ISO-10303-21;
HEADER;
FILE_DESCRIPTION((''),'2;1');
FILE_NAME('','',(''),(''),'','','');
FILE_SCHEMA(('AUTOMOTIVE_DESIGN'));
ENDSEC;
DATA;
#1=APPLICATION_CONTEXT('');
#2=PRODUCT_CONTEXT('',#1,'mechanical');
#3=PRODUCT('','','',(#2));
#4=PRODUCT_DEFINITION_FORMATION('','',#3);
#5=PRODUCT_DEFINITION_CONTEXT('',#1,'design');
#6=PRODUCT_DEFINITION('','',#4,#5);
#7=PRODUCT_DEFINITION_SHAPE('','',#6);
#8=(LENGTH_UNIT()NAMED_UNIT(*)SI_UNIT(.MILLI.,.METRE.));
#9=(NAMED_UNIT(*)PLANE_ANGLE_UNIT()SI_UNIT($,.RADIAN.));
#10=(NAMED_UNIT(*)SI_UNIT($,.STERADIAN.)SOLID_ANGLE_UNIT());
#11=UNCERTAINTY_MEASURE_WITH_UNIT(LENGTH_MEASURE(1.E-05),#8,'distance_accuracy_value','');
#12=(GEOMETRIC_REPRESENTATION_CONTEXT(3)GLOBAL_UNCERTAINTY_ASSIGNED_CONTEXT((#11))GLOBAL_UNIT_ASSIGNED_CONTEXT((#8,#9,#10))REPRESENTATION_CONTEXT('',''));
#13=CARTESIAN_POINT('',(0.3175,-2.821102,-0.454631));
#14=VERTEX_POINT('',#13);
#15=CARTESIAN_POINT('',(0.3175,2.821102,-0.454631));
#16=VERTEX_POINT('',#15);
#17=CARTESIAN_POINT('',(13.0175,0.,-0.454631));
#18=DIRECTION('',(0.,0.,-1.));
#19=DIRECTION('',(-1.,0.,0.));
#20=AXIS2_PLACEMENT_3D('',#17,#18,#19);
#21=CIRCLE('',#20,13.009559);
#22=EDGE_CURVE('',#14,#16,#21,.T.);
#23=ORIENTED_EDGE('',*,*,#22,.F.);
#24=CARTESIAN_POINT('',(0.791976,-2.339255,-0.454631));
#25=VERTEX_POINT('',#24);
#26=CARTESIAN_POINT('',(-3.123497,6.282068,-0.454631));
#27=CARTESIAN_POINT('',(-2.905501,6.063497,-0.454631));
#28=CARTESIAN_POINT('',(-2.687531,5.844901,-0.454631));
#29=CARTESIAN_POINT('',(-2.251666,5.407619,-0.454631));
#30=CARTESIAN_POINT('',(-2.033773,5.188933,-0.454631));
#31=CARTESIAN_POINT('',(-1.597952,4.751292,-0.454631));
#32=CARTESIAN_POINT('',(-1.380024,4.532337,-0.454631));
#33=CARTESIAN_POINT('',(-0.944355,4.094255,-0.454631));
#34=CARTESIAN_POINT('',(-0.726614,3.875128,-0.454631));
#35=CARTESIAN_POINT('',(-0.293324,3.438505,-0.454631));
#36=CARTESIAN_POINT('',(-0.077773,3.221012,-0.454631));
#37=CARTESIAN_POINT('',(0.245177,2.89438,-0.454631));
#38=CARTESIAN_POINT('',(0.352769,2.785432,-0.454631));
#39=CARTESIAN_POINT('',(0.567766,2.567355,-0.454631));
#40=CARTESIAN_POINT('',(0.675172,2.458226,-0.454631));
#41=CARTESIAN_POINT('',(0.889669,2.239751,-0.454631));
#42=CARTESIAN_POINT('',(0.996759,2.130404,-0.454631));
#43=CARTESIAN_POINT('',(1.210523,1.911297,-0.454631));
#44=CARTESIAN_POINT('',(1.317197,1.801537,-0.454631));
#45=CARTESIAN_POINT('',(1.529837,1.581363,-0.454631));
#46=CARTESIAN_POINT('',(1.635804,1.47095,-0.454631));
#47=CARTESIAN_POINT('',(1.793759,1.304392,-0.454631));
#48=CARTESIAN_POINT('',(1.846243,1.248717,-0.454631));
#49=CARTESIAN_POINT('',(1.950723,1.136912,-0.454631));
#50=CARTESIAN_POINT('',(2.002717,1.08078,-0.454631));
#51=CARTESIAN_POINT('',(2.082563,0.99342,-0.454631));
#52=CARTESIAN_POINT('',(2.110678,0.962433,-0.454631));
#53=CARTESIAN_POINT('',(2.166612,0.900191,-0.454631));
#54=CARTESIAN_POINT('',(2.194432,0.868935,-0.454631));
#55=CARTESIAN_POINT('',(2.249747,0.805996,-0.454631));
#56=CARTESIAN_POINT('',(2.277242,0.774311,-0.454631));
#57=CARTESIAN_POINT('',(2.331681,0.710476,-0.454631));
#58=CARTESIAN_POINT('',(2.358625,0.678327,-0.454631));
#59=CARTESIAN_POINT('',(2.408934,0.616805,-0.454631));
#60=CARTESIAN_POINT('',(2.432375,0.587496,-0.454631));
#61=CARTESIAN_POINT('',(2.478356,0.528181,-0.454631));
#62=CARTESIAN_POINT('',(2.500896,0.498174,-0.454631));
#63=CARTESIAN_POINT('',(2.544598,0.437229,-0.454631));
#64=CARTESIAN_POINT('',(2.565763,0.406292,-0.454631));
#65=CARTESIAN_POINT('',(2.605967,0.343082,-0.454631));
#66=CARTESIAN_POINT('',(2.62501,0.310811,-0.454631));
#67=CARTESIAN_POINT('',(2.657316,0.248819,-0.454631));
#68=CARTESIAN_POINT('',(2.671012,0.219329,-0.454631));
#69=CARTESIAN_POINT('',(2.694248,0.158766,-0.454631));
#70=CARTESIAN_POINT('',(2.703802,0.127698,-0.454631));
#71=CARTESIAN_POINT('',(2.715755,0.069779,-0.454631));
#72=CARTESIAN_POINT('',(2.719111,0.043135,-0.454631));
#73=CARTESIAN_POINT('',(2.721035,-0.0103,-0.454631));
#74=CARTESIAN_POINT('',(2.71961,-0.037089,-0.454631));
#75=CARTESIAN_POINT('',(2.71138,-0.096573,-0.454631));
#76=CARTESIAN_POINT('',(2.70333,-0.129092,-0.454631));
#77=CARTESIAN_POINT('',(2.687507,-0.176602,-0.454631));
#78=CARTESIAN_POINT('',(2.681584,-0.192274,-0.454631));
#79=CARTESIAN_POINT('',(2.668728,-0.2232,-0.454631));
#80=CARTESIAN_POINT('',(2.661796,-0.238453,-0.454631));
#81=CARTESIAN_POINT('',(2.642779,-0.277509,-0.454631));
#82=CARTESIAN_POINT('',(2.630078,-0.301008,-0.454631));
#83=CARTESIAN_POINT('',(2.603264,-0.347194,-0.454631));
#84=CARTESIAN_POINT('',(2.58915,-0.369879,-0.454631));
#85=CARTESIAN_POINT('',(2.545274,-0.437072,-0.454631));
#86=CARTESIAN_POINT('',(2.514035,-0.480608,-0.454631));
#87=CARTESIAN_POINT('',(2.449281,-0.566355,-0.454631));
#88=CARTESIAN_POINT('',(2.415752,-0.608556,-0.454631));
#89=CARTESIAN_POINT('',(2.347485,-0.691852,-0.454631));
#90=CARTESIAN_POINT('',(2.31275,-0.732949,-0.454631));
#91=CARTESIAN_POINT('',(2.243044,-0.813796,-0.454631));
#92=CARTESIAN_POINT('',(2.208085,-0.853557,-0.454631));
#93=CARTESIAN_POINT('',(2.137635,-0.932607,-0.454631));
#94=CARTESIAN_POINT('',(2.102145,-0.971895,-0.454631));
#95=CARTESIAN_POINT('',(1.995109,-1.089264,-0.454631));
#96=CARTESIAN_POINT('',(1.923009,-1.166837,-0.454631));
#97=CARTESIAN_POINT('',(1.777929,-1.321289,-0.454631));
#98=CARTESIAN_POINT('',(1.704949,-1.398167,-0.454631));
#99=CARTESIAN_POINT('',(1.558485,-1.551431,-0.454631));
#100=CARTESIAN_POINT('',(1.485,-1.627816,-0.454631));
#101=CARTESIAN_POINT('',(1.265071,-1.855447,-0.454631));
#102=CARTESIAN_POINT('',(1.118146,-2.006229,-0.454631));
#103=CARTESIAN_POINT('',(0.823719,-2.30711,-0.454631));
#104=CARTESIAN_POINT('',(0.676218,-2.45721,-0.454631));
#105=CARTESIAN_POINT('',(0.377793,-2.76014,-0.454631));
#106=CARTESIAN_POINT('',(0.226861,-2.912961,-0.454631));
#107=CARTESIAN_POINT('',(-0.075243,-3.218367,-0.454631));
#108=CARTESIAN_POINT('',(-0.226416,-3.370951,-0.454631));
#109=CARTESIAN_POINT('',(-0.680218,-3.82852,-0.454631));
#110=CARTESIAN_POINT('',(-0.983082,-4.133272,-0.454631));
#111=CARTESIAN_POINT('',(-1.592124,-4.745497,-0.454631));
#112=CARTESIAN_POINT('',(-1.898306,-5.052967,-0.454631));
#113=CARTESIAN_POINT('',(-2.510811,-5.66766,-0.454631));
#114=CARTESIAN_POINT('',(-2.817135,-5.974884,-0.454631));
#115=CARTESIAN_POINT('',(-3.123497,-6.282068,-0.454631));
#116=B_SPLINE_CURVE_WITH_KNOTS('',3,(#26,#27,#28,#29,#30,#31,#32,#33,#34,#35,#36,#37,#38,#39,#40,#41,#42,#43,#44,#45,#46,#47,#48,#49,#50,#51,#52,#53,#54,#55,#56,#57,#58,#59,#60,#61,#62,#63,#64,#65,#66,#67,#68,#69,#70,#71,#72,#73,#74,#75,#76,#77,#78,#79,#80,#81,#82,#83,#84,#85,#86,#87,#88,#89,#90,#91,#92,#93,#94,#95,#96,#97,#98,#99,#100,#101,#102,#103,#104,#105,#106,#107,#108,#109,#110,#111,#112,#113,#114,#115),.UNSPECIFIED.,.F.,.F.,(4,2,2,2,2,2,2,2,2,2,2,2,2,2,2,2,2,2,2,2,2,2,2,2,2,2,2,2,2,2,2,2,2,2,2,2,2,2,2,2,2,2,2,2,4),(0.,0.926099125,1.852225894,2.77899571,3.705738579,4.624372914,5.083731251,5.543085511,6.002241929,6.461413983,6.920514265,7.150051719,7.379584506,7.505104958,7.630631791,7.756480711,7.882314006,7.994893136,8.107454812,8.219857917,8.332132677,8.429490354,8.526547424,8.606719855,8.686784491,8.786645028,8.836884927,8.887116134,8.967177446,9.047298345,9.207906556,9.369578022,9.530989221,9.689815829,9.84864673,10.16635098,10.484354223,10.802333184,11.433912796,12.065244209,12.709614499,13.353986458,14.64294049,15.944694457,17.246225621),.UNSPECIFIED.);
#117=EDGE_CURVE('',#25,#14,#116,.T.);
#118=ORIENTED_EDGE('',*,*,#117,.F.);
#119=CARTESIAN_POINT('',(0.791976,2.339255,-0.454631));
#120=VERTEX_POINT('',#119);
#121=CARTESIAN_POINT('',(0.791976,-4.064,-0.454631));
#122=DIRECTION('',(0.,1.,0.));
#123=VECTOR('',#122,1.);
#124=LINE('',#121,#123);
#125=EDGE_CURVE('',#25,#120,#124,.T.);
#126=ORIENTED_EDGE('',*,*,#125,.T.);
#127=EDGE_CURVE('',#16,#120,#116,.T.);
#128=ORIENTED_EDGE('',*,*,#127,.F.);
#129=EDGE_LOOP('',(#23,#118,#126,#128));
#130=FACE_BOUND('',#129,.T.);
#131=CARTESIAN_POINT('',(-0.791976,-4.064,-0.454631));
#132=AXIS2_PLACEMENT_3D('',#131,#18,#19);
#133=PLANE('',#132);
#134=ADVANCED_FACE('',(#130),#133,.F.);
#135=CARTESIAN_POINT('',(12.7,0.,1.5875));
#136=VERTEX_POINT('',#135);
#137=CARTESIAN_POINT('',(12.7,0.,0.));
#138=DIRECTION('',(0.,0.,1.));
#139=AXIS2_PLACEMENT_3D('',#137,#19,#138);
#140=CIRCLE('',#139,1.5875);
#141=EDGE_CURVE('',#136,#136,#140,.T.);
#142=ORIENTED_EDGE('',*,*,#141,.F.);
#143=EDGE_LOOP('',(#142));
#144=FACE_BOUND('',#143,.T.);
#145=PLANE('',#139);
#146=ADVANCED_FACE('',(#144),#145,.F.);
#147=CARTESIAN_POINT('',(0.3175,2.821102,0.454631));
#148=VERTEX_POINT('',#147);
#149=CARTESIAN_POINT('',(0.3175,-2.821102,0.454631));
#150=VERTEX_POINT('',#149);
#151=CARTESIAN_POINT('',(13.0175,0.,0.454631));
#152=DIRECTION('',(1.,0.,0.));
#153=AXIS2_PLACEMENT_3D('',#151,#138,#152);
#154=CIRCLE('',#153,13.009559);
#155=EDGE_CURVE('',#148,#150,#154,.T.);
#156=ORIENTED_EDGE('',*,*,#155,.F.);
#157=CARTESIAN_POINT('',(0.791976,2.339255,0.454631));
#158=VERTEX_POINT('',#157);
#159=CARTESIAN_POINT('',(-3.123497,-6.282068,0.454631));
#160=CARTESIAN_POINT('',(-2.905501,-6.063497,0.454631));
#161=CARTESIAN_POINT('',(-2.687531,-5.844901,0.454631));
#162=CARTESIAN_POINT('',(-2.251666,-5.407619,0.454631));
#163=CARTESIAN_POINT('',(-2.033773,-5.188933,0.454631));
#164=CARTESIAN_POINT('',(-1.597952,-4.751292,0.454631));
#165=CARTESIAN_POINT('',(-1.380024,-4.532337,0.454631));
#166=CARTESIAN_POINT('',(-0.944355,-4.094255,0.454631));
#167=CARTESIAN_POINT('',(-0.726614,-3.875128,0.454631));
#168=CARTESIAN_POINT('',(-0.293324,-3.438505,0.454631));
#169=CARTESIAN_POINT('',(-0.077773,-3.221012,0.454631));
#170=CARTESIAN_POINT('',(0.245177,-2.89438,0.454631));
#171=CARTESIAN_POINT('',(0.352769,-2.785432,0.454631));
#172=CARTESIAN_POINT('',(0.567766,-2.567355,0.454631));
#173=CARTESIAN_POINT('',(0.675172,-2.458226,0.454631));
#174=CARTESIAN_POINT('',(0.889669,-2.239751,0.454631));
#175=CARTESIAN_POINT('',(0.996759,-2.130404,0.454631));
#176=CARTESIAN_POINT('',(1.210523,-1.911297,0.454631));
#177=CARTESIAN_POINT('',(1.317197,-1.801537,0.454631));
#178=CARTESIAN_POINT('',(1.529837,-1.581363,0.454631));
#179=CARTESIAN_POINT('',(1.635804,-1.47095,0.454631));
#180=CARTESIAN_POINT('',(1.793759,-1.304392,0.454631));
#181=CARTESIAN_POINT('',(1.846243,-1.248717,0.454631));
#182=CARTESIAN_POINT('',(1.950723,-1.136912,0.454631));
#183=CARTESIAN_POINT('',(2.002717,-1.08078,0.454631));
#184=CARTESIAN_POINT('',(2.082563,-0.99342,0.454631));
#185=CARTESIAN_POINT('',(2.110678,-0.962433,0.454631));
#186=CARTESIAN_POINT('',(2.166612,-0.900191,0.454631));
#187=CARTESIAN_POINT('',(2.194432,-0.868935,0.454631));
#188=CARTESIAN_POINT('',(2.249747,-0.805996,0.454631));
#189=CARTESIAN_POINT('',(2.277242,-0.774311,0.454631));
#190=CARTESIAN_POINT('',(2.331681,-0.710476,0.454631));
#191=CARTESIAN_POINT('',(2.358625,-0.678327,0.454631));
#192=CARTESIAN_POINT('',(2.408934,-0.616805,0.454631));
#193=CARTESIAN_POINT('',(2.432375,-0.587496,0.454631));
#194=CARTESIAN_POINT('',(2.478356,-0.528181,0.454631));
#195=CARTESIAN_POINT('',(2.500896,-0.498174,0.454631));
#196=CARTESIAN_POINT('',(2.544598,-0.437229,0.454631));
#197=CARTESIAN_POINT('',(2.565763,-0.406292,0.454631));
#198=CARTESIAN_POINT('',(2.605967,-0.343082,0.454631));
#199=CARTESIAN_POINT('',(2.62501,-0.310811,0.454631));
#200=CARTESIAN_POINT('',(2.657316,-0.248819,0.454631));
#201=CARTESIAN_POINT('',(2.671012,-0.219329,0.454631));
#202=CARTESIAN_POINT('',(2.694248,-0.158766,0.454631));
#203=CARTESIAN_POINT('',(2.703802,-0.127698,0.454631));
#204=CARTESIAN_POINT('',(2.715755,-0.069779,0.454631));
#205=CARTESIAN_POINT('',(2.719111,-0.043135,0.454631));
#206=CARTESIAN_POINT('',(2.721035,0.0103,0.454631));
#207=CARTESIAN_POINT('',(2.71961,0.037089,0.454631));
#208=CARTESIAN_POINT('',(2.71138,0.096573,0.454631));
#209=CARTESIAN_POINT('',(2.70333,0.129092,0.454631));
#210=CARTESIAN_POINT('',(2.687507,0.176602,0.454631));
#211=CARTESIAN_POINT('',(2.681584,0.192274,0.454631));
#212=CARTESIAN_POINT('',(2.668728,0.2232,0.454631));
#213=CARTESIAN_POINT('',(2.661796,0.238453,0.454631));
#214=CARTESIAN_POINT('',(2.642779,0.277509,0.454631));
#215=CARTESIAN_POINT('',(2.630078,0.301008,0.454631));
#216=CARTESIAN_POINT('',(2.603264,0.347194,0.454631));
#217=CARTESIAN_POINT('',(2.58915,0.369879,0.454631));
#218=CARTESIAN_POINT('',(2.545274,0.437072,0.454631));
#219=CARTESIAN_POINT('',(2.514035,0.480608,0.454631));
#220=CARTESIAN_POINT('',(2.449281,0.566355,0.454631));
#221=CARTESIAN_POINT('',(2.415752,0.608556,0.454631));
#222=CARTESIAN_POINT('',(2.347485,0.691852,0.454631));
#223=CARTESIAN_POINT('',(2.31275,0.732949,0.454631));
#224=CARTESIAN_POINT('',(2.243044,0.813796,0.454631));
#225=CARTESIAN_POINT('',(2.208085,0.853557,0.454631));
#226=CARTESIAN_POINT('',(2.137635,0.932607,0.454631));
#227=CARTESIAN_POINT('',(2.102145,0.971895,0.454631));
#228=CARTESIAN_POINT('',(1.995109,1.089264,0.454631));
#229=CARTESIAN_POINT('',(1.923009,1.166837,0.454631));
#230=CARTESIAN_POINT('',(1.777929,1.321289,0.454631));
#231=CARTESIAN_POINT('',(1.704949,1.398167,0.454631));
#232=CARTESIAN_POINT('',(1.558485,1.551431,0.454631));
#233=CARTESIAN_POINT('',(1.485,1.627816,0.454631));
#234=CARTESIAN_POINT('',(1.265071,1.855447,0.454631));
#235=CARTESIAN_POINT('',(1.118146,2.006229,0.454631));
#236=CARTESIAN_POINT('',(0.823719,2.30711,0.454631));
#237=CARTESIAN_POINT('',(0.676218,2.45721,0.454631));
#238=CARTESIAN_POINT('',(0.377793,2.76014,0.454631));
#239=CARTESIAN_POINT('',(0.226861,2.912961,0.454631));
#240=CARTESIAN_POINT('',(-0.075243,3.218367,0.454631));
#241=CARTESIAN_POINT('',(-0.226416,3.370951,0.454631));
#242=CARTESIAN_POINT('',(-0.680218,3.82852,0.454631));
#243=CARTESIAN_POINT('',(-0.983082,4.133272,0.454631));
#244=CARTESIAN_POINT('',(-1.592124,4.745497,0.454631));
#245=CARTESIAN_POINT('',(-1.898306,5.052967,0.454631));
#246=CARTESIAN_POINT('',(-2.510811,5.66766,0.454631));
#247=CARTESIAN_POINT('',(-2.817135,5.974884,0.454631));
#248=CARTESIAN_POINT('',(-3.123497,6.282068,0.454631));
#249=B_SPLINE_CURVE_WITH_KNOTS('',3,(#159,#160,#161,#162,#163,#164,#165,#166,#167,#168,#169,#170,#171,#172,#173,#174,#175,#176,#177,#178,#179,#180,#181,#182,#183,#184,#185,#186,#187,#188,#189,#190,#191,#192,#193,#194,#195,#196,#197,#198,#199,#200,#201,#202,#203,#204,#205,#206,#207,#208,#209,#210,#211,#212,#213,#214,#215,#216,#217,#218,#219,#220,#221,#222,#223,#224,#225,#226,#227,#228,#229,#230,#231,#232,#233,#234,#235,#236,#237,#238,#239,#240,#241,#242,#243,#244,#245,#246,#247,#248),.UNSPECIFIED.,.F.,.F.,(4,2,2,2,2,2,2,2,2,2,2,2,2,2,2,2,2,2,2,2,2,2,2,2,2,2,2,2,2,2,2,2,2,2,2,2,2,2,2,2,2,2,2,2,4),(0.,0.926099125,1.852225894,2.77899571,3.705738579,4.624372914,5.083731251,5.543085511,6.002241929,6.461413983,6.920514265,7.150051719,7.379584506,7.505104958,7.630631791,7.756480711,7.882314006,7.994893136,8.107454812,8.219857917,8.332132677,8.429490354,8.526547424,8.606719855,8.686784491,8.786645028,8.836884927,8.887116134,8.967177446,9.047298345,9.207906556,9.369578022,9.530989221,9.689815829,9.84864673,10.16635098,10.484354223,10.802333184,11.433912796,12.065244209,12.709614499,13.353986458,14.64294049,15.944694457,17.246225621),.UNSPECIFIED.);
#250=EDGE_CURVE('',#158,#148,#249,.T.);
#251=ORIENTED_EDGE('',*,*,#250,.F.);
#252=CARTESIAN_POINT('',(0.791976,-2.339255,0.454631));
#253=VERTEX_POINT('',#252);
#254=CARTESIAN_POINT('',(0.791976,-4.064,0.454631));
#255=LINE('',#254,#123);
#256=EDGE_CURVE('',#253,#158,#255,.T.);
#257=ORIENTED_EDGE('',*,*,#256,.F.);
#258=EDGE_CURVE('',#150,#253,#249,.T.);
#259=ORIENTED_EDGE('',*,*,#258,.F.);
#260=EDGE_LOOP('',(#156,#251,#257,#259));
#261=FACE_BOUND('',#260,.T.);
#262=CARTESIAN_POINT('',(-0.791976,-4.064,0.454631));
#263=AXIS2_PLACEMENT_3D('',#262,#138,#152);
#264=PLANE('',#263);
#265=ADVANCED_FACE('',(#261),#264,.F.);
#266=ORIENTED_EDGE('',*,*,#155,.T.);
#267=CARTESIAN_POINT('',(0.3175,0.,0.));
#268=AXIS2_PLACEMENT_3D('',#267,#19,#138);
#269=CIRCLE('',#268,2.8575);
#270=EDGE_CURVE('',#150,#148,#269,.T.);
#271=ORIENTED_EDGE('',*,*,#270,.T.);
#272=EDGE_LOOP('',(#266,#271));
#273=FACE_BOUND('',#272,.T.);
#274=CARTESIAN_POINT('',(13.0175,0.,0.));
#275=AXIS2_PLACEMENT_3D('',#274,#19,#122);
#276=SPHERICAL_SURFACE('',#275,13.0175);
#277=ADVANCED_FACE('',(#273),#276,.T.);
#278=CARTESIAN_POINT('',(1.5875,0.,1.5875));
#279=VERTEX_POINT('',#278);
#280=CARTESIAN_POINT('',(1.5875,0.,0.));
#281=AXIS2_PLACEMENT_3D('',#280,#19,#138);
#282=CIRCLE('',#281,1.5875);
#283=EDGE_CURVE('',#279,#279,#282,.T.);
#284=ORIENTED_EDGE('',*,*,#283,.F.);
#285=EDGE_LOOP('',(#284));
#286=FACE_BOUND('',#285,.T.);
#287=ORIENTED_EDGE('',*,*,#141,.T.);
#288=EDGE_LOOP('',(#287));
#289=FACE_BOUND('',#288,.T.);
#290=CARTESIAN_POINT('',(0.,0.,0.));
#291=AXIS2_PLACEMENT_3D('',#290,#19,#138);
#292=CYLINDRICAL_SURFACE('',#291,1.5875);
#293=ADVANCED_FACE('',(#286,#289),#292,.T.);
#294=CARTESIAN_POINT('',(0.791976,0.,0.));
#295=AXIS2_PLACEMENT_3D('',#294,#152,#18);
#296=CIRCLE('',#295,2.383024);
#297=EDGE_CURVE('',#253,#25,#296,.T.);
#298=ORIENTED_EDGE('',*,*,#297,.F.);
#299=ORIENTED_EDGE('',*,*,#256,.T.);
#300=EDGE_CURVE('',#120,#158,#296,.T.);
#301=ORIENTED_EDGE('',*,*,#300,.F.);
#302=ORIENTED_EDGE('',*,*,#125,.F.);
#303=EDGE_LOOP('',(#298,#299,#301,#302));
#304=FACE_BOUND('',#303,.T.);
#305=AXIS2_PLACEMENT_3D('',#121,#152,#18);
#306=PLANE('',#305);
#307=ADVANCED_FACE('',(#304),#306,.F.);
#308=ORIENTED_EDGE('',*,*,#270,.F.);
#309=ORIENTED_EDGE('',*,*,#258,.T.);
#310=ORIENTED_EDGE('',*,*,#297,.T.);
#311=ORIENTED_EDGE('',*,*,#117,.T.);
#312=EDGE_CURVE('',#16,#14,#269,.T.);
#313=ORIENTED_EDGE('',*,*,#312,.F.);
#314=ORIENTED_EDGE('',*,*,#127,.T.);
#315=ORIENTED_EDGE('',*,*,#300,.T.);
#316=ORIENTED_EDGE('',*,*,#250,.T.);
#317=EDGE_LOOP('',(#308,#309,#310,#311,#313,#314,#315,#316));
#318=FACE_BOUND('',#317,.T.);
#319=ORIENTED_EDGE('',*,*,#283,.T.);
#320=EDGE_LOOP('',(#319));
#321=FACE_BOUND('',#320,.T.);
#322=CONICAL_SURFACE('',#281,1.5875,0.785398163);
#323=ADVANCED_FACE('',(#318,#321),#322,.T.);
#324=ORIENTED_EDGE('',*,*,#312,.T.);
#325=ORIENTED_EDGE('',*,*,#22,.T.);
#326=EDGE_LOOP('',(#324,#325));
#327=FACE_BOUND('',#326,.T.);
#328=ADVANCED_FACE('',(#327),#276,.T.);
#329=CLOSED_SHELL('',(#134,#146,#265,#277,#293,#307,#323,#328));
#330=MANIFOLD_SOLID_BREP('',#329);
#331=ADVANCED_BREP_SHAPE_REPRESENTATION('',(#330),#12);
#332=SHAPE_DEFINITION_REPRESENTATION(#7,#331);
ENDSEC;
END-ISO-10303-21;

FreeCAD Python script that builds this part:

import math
import FreeCAD as App
import Part
import Sketcher

V = App.Vector
Q = App.Units.Quantity


def add_polygon(sketch, points):
    """Adds a closed chain of lines whose ends are joined by coincident constraints."""
    first, n = sketch.GeometryCount, len(points)
    for a, b in zip(points, points[1:] + points[:1]):
        sketch.addGeometry(Part.LineSegment(App.Vector(*a, 0), App.Vector(*b, 0)), False)
    for i in range(n):
        sketch.addConstraint(Sketcher.Constraint("Coincident", first + i, 2, first + (i + 1) % n, 1))

doc = App.newDocument("Part")
body = doc.addObject("PartDesign::Body", "Body")

# Sketch on XY plane
sketch1 = body.newObject("Sketcher::SketchObject", "Sketch")
sketch1.AttachmentSupport = (doc.getObject("XY_Plane"), [""])
sketch1.MapMode = "FlatFace"
sketch1.addGeometry(Part.LineSegment(V(0, 0, 0), V(12.7, 0, 0)), False)
sketch1.addGeometry(Part.LineSegment(V(12.7, 0, 0), V(12.7, 1.5875, 0)), False)
sketch1.addGeometry(Part.LineSegment(V(12.7, 1.5875, 0), V(1.5875, 1.5875, 0)), False)
sketch1.addGeometry(Part.LineSegment(V(1.5875, 1.5875, 0), V(0.3175, 2.8575, 0)), False)
sketch1.addGeometry(Part.ArcOfCircle(Part.Circle(V(13.0175, 0, 0), V(0, 0, 1), 13.0175), math.radians(167.319617), math.radians(180)), False)
sketch1.addConstraint(Sketcher.Constraint("Coincident", 0, 2, 1, 1))
sketch1.addConstraint(Sketcher.Constraint("Coincident", 1, 2, 2, 1))
sketch1.addConstraint(Sketcher.Constraint("Coincident", 2, 2, 3, 1))
sketch1.addConstraint(Sketcher.Constraint("Coincident", 3, 2, 4, 1))
sketch1.addConstraint(Sketcher.Constraint("Coincident", 4, 2, 0, 1))
sketch1.addConstraint(Sketcher.Constraint("Horizontal", 0))
sketch1.addConstraint(Sketcher.Constraint("Vertical", 1))
sketch1.addConstraint(Sketcher.Constraint("Horizontal", 2))
sketch1.addConstraint(Sketcher.Constraint("Coincident", 4, 2, -1, 1))
sketch1.addConstraint(Sketcher.Constraint("PointOnObject", 4, 3, -1))
sketch1.addConstraint(Sketcher.Constraint("DistanceX", 0, 1, 0, 2, Q("0.5 in")))
sketch1.addConstraint(Sketcher.Constraint("Angle", 3, Q("135 deg")))
sketch1.addConstraint(Sketcher.Constraint("Radius", 4, Q("0.5125 in")))
sketch1.addConstraint(Sketcher.Constraint("DistanceX", 3, 2, 4, 3, Q("0.5 in")))
sketch1.addConstraint(Sketcher.Constraint("DistanceX", 2, 2, 2, 1, Q("0.4375 in")))
revolution = body.newObject("PartDesign::Revolution", "Revolution")
revolution.Profile = sketch1
revolution.ReferenceAxis = (sketch1, ["H_Axis"])
revolution.Angle = 360

# Sketch on XZ plane
sketch2 = body.newObject("Sketcher::SketchObject", "Sketch001")
sketch2.AttachmentSupport = (doc.getObject("XZ_Plane"), [""])
sketch2.MapMode = "FlatFace"
add_polygon(sketch2, [(-0.791976, -0.454631), (-0.791976, 0.454631), (0.791976, 0.454631), (0.791976, -0.454631)])  # lines 0-3
sketch2.addConstraint(Sketcher.Constraint("Vertical", 0))
sketch2.addConstraint(Sketcher.Constraint("Horizontal", 1))
sketch2.addConstraint(Sketcher.Constraint("Vertical", 2))
sketch2.addConstraint(Sketcher.Constraint("Horizontal", 3))
sketch2.addConstraint(Sketcher.Constraint("Symmetric", 0, 2, 2, 2, -1, 1))
sketch2.addConstraint(Sketcher.Constraint("DistanceX", 1, 1, 1, 2, Q("1.583952 mm")))
sketch2.addConstraint(Sketcher.Constraint("DistanceY", 0, 1, 0, 2, Q("0.909262 mm")))
pocket1 = body.newObject("PartDesign::Pocket", "Pocket")
pocket1.Profile = sketch2
pocket1.Length = Q("0.32 in")
pocket1.Midplane = True

doc.recompute()
